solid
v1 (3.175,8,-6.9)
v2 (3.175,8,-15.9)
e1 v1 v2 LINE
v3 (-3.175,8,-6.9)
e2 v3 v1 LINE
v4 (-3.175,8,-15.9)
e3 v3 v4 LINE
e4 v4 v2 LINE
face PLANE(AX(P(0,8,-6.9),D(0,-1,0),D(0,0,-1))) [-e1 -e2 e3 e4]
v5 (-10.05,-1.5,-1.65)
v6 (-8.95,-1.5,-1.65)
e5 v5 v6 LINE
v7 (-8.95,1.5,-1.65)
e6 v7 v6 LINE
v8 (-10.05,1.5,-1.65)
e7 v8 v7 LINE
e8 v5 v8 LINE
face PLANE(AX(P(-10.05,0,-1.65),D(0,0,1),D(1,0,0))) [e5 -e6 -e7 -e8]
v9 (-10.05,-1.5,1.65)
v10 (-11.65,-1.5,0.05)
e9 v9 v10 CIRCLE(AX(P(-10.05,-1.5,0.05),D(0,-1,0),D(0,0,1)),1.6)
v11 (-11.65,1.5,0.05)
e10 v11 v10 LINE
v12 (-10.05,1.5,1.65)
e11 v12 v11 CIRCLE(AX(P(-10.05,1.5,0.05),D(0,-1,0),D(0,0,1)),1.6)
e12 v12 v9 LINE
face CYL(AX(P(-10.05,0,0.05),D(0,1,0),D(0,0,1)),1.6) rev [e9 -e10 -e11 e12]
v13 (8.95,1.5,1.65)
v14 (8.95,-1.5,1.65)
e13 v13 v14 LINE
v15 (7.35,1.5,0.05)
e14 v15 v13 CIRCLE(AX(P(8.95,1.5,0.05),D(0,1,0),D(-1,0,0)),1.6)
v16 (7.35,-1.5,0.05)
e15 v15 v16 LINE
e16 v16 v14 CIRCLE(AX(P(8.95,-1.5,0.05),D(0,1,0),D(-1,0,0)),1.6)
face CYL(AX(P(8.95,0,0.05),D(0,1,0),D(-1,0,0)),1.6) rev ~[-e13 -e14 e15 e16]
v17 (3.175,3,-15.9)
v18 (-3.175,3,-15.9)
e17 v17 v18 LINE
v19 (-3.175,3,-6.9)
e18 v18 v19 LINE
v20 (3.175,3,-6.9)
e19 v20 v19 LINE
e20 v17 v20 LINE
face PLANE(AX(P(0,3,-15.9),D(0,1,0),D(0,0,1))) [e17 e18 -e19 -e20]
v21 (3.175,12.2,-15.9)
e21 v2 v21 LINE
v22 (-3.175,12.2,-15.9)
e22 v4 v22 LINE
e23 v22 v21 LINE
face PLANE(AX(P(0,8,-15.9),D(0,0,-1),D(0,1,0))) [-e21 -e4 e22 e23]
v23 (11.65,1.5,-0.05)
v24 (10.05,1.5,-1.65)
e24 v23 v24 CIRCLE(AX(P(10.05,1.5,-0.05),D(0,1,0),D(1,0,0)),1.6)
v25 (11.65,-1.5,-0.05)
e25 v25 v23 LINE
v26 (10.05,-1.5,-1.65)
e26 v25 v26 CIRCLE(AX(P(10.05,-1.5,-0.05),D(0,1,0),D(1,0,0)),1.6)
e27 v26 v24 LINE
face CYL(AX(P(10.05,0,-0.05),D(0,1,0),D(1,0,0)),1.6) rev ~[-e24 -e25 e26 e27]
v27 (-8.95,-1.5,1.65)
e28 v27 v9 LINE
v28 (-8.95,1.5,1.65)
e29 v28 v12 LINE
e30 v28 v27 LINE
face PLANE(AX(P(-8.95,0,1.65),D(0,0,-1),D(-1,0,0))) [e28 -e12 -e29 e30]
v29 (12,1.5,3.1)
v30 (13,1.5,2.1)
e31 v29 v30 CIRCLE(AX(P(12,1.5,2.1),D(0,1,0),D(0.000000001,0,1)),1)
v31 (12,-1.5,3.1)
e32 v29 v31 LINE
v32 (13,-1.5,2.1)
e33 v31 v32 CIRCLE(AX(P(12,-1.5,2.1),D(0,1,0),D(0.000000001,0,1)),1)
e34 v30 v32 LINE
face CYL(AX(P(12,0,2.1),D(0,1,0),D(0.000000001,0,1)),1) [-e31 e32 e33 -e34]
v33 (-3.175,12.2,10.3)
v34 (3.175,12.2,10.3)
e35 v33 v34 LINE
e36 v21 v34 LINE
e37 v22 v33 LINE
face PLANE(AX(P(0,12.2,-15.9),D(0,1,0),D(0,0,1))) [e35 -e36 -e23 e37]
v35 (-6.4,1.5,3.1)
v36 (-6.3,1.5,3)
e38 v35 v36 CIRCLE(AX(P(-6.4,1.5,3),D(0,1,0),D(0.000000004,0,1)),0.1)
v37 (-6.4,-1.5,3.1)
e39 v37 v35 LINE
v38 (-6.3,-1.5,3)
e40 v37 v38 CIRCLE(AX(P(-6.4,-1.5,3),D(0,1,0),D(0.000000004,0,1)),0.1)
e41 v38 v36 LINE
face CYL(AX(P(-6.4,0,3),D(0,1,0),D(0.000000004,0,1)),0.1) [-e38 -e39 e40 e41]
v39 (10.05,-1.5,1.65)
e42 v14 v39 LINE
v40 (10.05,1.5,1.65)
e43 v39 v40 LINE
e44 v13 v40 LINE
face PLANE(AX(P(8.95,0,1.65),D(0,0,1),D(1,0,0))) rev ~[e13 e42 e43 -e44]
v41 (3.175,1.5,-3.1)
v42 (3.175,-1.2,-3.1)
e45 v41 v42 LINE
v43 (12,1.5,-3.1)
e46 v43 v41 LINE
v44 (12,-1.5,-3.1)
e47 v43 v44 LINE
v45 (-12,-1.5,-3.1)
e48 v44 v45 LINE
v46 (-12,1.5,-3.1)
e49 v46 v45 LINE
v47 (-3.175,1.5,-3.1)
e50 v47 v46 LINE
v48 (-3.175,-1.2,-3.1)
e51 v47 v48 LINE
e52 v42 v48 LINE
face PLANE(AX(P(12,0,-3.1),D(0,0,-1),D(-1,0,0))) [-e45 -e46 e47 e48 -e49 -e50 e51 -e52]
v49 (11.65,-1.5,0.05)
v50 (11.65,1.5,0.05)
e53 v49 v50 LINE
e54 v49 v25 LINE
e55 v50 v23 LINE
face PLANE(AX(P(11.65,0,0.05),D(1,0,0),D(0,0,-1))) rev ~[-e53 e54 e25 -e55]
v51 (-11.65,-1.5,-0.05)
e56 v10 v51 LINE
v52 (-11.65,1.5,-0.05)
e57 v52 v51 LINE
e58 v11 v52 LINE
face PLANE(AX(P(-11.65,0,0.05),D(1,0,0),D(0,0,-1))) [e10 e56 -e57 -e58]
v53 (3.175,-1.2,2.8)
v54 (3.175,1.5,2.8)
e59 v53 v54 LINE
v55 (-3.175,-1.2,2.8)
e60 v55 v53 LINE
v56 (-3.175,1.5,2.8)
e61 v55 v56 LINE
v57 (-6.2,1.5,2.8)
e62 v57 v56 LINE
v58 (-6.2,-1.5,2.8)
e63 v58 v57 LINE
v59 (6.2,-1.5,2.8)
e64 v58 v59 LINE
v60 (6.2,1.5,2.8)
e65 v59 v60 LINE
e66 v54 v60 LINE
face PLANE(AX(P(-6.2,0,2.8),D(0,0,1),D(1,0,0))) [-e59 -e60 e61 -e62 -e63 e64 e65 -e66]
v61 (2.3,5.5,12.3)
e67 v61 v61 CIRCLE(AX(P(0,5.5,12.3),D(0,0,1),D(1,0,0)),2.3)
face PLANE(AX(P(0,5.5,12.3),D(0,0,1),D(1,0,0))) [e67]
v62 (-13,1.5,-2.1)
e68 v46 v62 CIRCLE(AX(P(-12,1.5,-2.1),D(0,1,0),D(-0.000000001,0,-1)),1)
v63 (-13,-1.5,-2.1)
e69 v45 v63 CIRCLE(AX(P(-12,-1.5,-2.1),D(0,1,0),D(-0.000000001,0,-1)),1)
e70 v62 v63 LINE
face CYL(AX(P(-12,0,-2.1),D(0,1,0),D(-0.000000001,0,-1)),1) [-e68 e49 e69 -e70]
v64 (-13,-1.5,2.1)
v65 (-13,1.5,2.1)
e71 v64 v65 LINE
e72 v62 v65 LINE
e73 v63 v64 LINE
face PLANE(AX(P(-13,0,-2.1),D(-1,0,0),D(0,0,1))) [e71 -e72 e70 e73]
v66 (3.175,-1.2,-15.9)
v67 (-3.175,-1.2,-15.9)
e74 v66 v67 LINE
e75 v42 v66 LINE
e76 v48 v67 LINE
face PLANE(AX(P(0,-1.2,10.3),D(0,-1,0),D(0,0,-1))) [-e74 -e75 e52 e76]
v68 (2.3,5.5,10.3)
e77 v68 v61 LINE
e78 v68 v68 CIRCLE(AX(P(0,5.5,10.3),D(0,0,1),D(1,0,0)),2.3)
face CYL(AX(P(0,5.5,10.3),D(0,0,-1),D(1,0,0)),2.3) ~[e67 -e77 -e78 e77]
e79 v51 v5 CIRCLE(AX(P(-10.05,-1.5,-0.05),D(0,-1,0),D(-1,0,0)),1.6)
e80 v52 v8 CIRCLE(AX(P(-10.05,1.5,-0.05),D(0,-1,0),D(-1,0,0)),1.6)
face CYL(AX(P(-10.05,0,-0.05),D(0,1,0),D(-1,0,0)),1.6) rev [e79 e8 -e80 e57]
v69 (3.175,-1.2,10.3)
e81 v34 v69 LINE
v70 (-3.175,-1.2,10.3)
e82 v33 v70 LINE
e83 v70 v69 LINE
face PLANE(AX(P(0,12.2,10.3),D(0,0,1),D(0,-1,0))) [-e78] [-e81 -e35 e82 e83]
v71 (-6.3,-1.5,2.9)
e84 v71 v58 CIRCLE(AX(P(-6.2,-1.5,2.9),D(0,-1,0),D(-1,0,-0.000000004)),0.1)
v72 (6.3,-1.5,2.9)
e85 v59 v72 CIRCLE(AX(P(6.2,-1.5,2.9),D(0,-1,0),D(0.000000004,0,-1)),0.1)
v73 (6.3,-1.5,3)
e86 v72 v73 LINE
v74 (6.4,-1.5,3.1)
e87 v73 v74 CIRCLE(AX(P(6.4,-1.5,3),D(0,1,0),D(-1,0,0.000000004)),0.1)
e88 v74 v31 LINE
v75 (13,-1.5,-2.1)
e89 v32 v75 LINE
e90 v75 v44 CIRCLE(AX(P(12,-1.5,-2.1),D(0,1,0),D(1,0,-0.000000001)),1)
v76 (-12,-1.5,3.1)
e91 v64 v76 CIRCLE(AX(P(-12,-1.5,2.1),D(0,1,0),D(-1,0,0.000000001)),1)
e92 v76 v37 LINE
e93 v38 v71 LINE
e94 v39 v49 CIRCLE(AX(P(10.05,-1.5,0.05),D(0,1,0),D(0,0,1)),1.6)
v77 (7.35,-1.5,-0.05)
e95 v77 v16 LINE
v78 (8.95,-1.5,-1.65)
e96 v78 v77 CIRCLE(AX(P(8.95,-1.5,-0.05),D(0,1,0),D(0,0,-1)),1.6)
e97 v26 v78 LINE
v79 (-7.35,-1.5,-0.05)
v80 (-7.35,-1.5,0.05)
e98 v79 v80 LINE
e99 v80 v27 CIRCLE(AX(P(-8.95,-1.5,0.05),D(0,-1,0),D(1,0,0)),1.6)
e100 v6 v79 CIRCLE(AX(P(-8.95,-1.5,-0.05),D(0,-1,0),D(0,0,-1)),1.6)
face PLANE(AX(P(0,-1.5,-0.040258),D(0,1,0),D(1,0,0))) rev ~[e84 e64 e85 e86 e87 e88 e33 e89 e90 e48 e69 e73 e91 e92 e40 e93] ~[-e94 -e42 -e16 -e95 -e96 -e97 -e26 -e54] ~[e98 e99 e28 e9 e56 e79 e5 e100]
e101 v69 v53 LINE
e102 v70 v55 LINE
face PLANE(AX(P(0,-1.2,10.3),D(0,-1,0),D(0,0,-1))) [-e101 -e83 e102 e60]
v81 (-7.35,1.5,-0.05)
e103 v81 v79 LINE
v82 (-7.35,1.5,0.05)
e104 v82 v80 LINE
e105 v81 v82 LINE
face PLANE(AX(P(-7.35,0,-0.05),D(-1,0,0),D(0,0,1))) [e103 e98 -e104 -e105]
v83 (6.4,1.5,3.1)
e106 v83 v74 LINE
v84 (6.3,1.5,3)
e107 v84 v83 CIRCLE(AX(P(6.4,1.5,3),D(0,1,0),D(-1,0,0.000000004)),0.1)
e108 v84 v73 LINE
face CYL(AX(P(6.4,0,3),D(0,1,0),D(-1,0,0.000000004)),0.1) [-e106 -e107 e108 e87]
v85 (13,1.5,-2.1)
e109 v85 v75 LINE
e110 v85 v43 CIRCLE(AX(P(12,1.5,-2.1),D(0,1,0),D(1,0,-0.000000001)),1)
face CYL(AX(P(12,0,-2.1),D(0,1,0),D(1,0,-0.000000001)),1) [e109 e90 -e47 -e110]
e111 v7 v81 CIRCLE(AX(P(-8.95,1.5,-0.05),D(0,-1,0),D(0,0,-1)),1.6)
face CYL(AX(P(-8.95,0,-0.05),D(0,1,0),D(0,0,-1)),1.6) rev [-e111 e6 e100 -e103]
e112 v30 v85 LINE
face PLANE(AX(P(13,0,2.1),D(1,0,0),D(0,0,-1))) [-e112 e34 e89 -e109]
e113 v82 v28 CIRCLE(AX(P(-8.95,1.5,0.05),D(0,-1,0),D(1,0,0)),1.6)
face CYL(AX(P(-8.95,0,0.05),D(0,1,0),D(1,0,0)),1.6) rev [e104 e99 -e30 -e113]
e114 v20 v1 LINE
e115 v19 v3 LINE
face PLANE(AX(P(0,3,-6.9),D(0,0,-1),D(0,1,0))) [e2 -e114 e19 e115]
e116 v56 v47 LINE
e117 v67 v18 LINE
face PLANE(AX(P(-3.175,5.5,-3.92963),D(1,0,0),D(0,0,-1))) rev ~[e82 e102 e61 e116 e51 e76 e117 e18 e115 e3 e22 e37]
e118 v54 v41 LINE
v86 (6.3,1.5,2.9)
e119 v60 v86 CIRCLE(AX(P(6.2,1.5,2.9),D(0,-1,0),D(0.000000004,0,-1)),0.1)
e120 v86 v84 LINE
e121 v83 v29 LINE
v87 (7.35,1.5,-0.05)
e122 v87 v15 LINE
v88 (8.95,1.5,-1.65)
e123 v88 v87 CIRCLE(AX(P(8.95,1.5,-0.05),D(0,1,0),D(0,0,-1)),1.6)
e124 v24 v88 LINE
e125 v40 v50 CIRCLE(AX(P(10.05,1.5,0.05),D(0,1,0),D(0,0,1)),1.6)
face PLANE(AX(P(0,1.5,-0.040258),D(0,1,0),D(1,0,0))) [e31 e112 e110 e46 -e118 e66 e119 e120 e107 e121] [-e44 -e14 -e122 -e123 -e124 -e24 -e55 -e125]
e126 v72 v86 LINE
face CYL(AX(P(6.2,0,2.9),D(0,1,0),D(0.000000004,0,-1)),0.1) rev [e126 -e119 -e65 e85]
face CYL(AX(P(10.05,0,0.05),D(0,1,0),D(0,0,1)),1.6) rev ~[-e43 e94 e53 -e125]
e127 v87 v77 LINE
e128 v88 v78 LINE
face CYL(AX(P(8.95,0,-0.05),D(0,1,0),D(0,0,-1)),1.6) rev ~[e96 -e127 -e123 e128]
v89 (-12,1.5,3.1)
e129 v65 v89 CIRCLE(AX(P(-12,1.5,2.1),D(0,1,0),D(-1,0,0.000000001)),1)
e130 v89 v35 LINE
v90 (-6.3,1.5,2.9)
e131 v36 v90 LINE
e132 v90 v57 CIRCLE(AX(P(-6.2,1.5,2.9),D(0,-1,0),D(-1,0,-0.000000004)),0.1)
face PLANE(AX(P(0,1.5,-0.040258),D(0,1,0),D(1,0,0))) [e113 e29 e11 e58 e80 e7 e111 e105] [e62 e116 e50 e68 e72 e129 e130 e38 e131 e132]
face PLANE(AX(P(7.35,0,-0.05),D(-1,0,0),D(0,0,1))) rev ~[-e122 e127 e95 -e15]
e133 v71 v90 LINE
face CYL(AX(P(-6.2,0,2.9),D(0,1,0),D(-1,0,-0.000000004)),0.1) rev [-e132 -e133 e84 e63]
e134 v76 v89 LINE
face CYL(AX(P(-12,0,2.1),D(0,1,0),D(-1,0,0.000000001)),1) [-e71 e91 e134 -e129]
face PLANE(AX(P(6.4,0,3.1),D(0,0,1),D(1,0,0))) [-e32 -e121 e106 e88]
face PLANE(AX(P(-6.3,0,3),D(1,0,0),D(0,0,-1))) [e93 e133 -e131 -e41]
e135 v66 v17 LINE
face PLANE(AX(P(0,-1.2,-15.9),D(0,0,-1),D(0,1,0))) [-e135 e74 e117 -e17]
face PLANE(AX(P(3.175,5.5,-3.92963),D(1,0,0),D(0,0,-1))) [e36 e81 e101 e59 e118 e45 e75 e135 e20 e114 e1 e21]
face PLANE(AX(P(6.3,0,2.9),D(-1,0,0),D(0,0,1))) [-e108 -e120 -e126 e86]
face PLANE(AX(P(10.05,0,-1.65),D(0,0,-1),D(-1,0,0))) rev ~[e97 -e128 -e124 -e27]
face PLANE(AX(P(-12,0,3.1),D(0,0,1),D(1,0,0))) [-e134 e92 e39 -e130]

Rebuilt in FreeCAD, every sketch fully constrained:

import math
import FreeCAD as App
import Part
import Sketcher

V = App.Vector


def add_polygon(sketch, points):
    """Adds a closed chain of lines whose ends are joined by coincident constraints."""
    first, n = sketch.GeometryCount, len(points)
    for a, b in zip(points, points[1:] + points[:1]):
        sketch.addGeometry(Part.LineSegment(App.Vector(*a, 0), App.Vector(*b, 0)), False)
    for i in range(n):
        sketch.addConstraint(Sketcher.Constraint("Coincident", first + i, 2, first + (i + 1) % n, 1))

doc = App.newDocument("Part")
body = doc.addObject("PartDesign::Body", "Body")

# Sketch on XZ plane
sketch1 = body.newObject("Sketcher::SketchObject", "Sketch")
sketch1.AttachmentSupport = (doc.getObject("XZ_Plane"), [""])
sketch1.MapMode = "FlatFace"
sketch1.addGeometry(Part.LineSegment(V(-13, -2.1, 0), V(-13, 2.1, 0)), False)
sketch1.addGeometry(Part.ArcOfCircle(Part.Circle(V(-12, 2.1, 0), V(0, 0, 1), 1), math.radians(90), math.radians(180)), False)
sketch1.addGeometry(Part.LineSegment(V(-12, 3.1, 0), V(-6.4, 3.1, 0)), False)
sketch1.addGeometry(Part.ArcOfCircle(Part.Circle(V(-6.4, 3, 0), V(0, 0, 1), 0.1), math.radians(0), math.radians(90)), False)
sketch1.addGeometry(Part.LineSegment(V(-6.3, 3, 0), V(-6.3, 2.9, 0)), False)
sketch1.addGeometry(Part.ArcOfCircle(Part.Circle(V(-6.2, 2.9, 0), V(0, 0, 1), 0.1), math.radians(180), math.radians(270)), False)
sketch1.addGeometry(Part.LineSegment(V(-6.2, 2.8, 0), V(6.2, 2.8, 0)), False)
sketch1.addGeometry(Part.ArcOfCircle(Part.Circle(V(6.2, 2.9, 0), V(0, 0, 1), 0.1), math.radians(-90), math.radians(0)), False)
sketch1.addGeometry(Part.LineSegment(V(6.3, 2.9, 0), V(6.3, 3, 0)), False)
sketch1.addGeometry(Part.ArcOfCircle(Part.Circle(V(6.4, 3, 0), V(0, 0, 1), 0.1), math.radians(90), math.radians(180)), False)
sketch1.addGeometry(Part.LineSegment(V(6.4, 3.1, 0), V(12, 3.1, 0)), False)
sketch1.addGeometry(Part.ArcOfCircle(Part.Circle(V(12, 2.1, 0), V(0, 0, 1), 1), math.radians(0), math.radians(90)), False)
sketch1.addGeometry(Part.LineSegment(V(13, 2.1, 0), V(13, -2.1, 0)), False)
sketch1.addGeometry(Part.ArcOfCircle(Part.Circle(V(12, -2.1, 0), V(0, 0, 1), 1), math.radians(-90), math.radians(0)), False)
sketch1.addGeometry(Part.LineSegment(V(12, -3.1, 0), V(-12, -3.1, 0)), False)
sketch1.addGeometry(Part.ArcOfCircle(Part.Circle(V(-12, -2.1, 0), V(0, 0, 1), 1), math.radians(-180), math.radians(-90)), False)
sketch1.addGeometry(Part.ArcOfCircle(Part.Circle(V(-10.05, -0.05, 0), V(0, 0, 1), 1.6), math.radians(180), math.radians(270)), False)
sketch1.addGeometry(Part.LineSegment(V(-10.05, -1.65, 0), V(-8.95, -1.65, 0)), False)
sketch1.addGeometry(Part.ArcOfCircle(Part.Circle(V(-8.95, -0.05, 0), V(0, 0, 1), 1.6), math.radians(-90), math.radians(0)), False)
sketch1.addGeometry(Part.LineSegment(V(-7.35, -0.05, 0), V(-7.35, 0.05, 0)), False)
sketch1.addGeometry(Part.ArcOfCircle(Part.Circle(V(-8.95, 0.05, 0), V(0, 0, 1), 1.6), math.radians(0), math.radians(90)), False)
sketch1.addGeometry(Part.LineSegment(V(-8.95, 1.65, 0), V(-10.05, 1.65, 0)), False)
sketch1.addGeometry(Part.ArcOfCircle(Part.Circle(V(-10.05, 0.05, 0), V(0, 0, 1), 1.6), math.radians(90), math.radians(180)), False)
sketch1.addGeometry(Part.LineSegment(V(-11.65, 0.05, 0), V(-11.65, -0.05, 0)), False)
sketch1.addGeometry(Part.LineSegment(V(8.95, -1.65, 0), V(10.05, -1.65, 0)), False)
sketch1.addGeometry(Part.ArcOfCircle(Part.Circle(V(10.05, -0.05, 0), V(0, 0, 1), 1.6), math.radians(-90), math.radians(0)), False)
sketch1.addGeometry(Part.LineSegment(V(11.65, -0.05, 0), V(11.65, 0.05, 0)), False)
sketch1.addGeometry(Part.ArcOfCircle(Part.Circle(V(10.05, 0.05, 0), V(0, 0, 1), 1.6), math.radians(0), math.radians(90)), False)
sketch1.addGeometry(Part.LineSegment(V(10.05, 1.65, 0), V(8.95, 1.65, 0)), False)
sketch1.addGeometry(Part.ArcOfCircle(Part.Circle(V(8.95, 0.05, 0), V(0, 0, 1), 1.6), math.radians(90), math.radians(180)), False)
sketch1.addGeometry(Part.LineSegment(V(7.35, 0.05, 0), V(7.35, -0.05, 0)), False)
sketch1.addGeometry(Part.ArcOfCircle(Part.Circle(V(8.95, -0.05, 0), V(0, 0, 1), 1.6), math.radians(180), math.radians(270)), False)
sketch1.addConstraint(Sketcher.Constraint("Tangent", 0, 2, 1, 2))
sketch1.addConstraint(Sketcher.Constraint("Tangent", 1, 1, 2, 1))
sketch1.addConstraint(Sketcher.Constraint("Tangent", 2, 2, 3, 2))
sketch1.addConstraint(Sketcher.Constraint("Tangent", 3, 1, 4, 1))
sketch1.addConstraint(Sketcher.Constraint("Tangent", 4, 2, 5, 1))
sketch1.addConstraint(Sketcher.Constraint("Tangent", 5, 2, 6, 1))
sketch1.addConstraint(Sketcher.Constraint("Tangent", 6, 2, 7, 1))
sketch1.addConstraint(Sketcher.Constraint("Tangent", 7, 2, 8, 1))
sketch1.addConstraint(Sketcher.Constraint("Tangent", 8, 2, 9, 2))
sketch1.addConstraint(Sketcher.Constraint("Tangent", 9, 1, 10, 1))
sketch1.addConstraint(Sketcher.Constraint("Tangent", 10, 2, 11, 2))
sketch1.addConstraint(Sketcher.Constraint("Tangent", 11, 1, 12, 1))
sketch1.addConstraint(Sketcher.Constraint("Tangent", 12, 2, 13, 2))
sketch1.addConstraint(Sketcher.Constraint("Tangent", 13, 1, 14, 1))
sketch1.addConstraint(Sketcher.Constraint("Tangent", 14, 2, 15, 2))
sketch1.addConstraint(Sketcher.Constraint("Tangent", 15, 1, 0, 1))
sketch1.addConstraint(Sketcher.Constraint("Tangent", 16, 2, 17, 1))
sketch1.addConstraint(Sketcher.Constraint("Tangent", 17, 2, 18, 1))
sketch1.addConstraint(Sketcher.Constraint("Tangent", 18, 2, 19, 1))
sketch1.addConstraint(Sketcher.Constraint("Tangent", 19, 2, 20, 1))
sketch1.addConstraint(Sketcher.Constraint("Tangent", 20, 2, 21, 1))
sketch1.addConstraint(Sketcher.Constraint("Tangent", 21, 2, 22, 1))
sketch1.addConstraint(Sketcher.Constraint("Tangent", 22, 2, 23, 1))
sketch1.addConstraint(Sketcher.Constraint("Tangent", 23, 2, 16, 1))
sketch1.addConstraint(Sketcher.Constraint("Tangent", 24, 2, 25, 1))
sketch1.addConstraint(Sketcher.Constraint("Tangent", 25, 2, 26, 1))
sketch1.addConstraint(Sketcher.Constraint("Tangent", 26, 2, 27, 1))
sketch1.addConstraint(Sketcher.Constraint("Tangent", 27, 2, 28, 1))
sketch1.addConstraint(Sketcher.Constraint("Tangent", 28, 2, 29, 1))
sketch1.addConstraint(Sketcher.Constraint("Tangent", 29, 2, 30, 1))
sketch1.addConstraint(Sketcher.Constraint("Tangent", 30, 2, 31, 1))
sketch1.addConstraint(Sketcher.Constraint("Tangent", 31, 2, 24, 1))
sketch1.addConstraint(Sketcher.Constraint("Vertical", 0))
sketch1.addConstraint(Sketcher.Constraint("Horizontal", 2))
sketch1.addConstraint(Sketcher.Constraint("Vertical", 4))
sketch1.addConstraint(Sketcher.Constraint("Horizontal", 6))
sketch1.addConstraint(Sketcher.Constraint("Vertical", 8))
sketch1.addConstraint(Sketcher.Constraint("Horizontal", 10))
sketch1.addConstraint(Sketcher.Constraint("Vertical", 12))
sketch1.addConstraint(Sketcher.Constraint("Horizontal", 14))
sketch1.addConstraint(Sketcher.Constraint("Horizontal", 17))
sketch1.addConstraint(Sketcher.Constraint("Vertical", 19))
sketch1.addConstraint(Sketcher.Constraint("Horizontal", 21))
sketch1.addConstraint(Sketcher.Constraint("Vertical", 23))
sketch1.addConstraint(Sketcher.Constraint("Horizontal", 24))
sketch1.addConstraint(Sketcher.Constraint("Vertical", 26))
sketch1.addConstraint(Sketcher.Constraint("Horizontal", 28))
sketch1.addConstraint(Sketcher.Constraint("Vertical", 30))
sketch1.addConstraint(Sketcher.Constraint("Equal", 3, 5))
sketch1.addConstraint(Sketcher.Constraint("Equal", 5, 7))
sketch1.addConstraint(Sketcher.Constraint("Equal", 7, 9))
sketch1.addConstraint(Sketcher.Constraint("Equal", 1, 11))
sketch1.addConstraint(Sketcher.Constraint("Equal", 11, 13))
sketch1.addConstraint(Sketcher.Constraint("Equal", 13, 15))
sketch1.addConstraint(Sketcher.Constraint("Equal", 16, 18))
sketch1.addConstraint(Sketcher.Constraint("Equal", 18, 20))
sketch1.addConstraint(Sketcher.Constraint("Equal", 20, 22))
sketch1.addConstraint(Sketcher.Constraint("Equal", 22, 25))
sketch1.addConstraint(Sketcher.Constraint("Equal", 25, 27))
sketch1.addConstraint(Sketcher.Constraint("Equal", 27, 29))
sketch1.addConstraint(Sketcher.Constraint("Equal", 29, 31))
sketch1.addConstraint(Sketcher.Constraint("Symmetric", 1, 3, 13, 3, -1, 1))
sketch1.addConstraint(Sketcher.Constraint("Symmetric", 22, 3, 25, 3, -1, 1))
sketch1.addConstraint(Sketcher.Constraint("Symmetric", 18, 3, 29, 3, -1, 1))
sketch1.addConstraint(Sketcher.Constraint("Symmetric", 3, 3, 9, 3, -2))
sketch1.addConstraint(Sketcher.Constraint("Horizontal", 18, 3, 25, 3))
sketch1.addConstraint(Sketcher.Constraint("Equal", 8, 19))
sketch1.addConstraint(Sketcher.Constraint("Radius", 1, 1.0))
sketch1.addConstraint(Sketcher.Constraint("Radius", 3, 0.1))
sketch1.addConstraint(Sketcher.Constraint("Radius", 16, 1.6))
sketch1.addConstraint(Sketcher.Constraint("DistanceX", 14, 2, 14, 1, 24.0))
sketch1.addConstraint(Sketcher.Constraint("DistanceX", 2, 1, 2, 2, 5.6))
sketch1.addConstraint(Sketcher.Constraint("DistanceX", 17, 1, 17, 2, 1.1))
sketch1.addConstraint(Sketcher.Constraint("DistanceY", 0, 1, 0, 2, 4.2))
sketch1.addConstraint(Sketcher.Constraint("DistanceY", 4, 2, 4, 1, 0.1))
sketch1.addConstraint(Sketcher.Constraint("DistanceX", 16, 3, -1, 1, 10.05))
pad1 = body.newObject("PartDesign::Pad", "Pad")
pad1.Profile = sketch1
pad1.Length = 3
pad1.Midplane = True

# Sketch on YZ plane
sketch2 = body.newObject("Sketcher::SketchObject", "Sketch001")
sketch2.AttachmentSupport = (doc.getObject("YZ_Plane"), [""])
sketch2.MapMode = "FlatFace"
add_polygon(sketch2, [(3, -6.9), (8, -6.9), (8, -15.9), (12.2, -15.9), (12.2, 10.3), (-1.2, 10.3), (-1.2, -15.9), (3, -15.9)])  # lines 0-7
sketch2.addConstraint(Sketcher.Constraint("Horizontal", 0))
sketch2.addConstraint(Sketcher.Constraint("Vertical", 1))
sketch2.addConstraint(Sketcher.Constraint("Horizontal", 2))
sketch2.addConstraint(Sketcher.Constraint("Vertical", 3))
sketch2.addConstraint(Sketcher.Constraint("Horizontal", 4))
sketch2.addConstraint(Sketcher.Constraint("Vertical", 5))
sketch2.addConstraint(Sketcher.Constraint("Horizontal", 6))
sketch2.addConstraint(Sketcher.Constraint("Vertical", 7))
sketch2.addConstraint(Sketcher.Constraint("Horizontal", 2, 2, 5, 2))
sketch2.addConstraint(Sketcher.Constraint("Equal", 2, 6))
sketch2.addConstraint(Sketcher.Constraint("DistanceX", 0, 1, 0, 2, 5.0))
sketch2.addConstraint(Sketcher.Constraint("DistanceY", 1, 2, 1, 1, 9.0))
sketch2.addConstraint(Sketcher.Constraint("DistanceX", 2, 1, 2, 2, 4.2))
sketch2.addConstraint(Sketcher.Constraint("DistanceY", 3, 1, 3, 2, 26.2))
sketch2.addConstraint(Sketcher.Constraint("DistanceX", -1, 1, 0, 2, 8.0))
sketch2.addConstraint(Sketcher.Constraint("DistanceY", 0, 2, -1, 1, 6.9))
pad2 = body.newObject("PartDesign::Pad", "Pad001")
pad2.Profile = sketch2
pad2.Length = 6.35
pad2.Midplane = True

# Sketch on XY plane
sketch3 = body.newObject("Sketcher::SketchObject", "Sketch002")
sketch3.AttachmentSupport = (doc.getObject("XY_Plane"), [""])
sketch3.MapMode = "FlatFace"
sketch3.AttachmentOffset = App.Placement(V(0, 0, 10.3), App.Rotation())
sketch3.addGeometry(Part.Circle(V(0, 5.5, 0), V(0, 0, 1), 2.3), False)
sketch3.addConstraint(Sketcher.Constraint("PointOnObject", 0, 3, -2))
sketch3.addConstraint(Sketcher.Constraint("Diameter", 0, 4.6))
sketch3.addConstraint(Sketcher.Constraint("DistanceY", -1, 1, 0, 3, 5.5))
pad3 = body.newObject("PartDesign::Pad", "Pad002")
pad3.Profile = sketch3
pad3.Length = 2

doc.recompute()
